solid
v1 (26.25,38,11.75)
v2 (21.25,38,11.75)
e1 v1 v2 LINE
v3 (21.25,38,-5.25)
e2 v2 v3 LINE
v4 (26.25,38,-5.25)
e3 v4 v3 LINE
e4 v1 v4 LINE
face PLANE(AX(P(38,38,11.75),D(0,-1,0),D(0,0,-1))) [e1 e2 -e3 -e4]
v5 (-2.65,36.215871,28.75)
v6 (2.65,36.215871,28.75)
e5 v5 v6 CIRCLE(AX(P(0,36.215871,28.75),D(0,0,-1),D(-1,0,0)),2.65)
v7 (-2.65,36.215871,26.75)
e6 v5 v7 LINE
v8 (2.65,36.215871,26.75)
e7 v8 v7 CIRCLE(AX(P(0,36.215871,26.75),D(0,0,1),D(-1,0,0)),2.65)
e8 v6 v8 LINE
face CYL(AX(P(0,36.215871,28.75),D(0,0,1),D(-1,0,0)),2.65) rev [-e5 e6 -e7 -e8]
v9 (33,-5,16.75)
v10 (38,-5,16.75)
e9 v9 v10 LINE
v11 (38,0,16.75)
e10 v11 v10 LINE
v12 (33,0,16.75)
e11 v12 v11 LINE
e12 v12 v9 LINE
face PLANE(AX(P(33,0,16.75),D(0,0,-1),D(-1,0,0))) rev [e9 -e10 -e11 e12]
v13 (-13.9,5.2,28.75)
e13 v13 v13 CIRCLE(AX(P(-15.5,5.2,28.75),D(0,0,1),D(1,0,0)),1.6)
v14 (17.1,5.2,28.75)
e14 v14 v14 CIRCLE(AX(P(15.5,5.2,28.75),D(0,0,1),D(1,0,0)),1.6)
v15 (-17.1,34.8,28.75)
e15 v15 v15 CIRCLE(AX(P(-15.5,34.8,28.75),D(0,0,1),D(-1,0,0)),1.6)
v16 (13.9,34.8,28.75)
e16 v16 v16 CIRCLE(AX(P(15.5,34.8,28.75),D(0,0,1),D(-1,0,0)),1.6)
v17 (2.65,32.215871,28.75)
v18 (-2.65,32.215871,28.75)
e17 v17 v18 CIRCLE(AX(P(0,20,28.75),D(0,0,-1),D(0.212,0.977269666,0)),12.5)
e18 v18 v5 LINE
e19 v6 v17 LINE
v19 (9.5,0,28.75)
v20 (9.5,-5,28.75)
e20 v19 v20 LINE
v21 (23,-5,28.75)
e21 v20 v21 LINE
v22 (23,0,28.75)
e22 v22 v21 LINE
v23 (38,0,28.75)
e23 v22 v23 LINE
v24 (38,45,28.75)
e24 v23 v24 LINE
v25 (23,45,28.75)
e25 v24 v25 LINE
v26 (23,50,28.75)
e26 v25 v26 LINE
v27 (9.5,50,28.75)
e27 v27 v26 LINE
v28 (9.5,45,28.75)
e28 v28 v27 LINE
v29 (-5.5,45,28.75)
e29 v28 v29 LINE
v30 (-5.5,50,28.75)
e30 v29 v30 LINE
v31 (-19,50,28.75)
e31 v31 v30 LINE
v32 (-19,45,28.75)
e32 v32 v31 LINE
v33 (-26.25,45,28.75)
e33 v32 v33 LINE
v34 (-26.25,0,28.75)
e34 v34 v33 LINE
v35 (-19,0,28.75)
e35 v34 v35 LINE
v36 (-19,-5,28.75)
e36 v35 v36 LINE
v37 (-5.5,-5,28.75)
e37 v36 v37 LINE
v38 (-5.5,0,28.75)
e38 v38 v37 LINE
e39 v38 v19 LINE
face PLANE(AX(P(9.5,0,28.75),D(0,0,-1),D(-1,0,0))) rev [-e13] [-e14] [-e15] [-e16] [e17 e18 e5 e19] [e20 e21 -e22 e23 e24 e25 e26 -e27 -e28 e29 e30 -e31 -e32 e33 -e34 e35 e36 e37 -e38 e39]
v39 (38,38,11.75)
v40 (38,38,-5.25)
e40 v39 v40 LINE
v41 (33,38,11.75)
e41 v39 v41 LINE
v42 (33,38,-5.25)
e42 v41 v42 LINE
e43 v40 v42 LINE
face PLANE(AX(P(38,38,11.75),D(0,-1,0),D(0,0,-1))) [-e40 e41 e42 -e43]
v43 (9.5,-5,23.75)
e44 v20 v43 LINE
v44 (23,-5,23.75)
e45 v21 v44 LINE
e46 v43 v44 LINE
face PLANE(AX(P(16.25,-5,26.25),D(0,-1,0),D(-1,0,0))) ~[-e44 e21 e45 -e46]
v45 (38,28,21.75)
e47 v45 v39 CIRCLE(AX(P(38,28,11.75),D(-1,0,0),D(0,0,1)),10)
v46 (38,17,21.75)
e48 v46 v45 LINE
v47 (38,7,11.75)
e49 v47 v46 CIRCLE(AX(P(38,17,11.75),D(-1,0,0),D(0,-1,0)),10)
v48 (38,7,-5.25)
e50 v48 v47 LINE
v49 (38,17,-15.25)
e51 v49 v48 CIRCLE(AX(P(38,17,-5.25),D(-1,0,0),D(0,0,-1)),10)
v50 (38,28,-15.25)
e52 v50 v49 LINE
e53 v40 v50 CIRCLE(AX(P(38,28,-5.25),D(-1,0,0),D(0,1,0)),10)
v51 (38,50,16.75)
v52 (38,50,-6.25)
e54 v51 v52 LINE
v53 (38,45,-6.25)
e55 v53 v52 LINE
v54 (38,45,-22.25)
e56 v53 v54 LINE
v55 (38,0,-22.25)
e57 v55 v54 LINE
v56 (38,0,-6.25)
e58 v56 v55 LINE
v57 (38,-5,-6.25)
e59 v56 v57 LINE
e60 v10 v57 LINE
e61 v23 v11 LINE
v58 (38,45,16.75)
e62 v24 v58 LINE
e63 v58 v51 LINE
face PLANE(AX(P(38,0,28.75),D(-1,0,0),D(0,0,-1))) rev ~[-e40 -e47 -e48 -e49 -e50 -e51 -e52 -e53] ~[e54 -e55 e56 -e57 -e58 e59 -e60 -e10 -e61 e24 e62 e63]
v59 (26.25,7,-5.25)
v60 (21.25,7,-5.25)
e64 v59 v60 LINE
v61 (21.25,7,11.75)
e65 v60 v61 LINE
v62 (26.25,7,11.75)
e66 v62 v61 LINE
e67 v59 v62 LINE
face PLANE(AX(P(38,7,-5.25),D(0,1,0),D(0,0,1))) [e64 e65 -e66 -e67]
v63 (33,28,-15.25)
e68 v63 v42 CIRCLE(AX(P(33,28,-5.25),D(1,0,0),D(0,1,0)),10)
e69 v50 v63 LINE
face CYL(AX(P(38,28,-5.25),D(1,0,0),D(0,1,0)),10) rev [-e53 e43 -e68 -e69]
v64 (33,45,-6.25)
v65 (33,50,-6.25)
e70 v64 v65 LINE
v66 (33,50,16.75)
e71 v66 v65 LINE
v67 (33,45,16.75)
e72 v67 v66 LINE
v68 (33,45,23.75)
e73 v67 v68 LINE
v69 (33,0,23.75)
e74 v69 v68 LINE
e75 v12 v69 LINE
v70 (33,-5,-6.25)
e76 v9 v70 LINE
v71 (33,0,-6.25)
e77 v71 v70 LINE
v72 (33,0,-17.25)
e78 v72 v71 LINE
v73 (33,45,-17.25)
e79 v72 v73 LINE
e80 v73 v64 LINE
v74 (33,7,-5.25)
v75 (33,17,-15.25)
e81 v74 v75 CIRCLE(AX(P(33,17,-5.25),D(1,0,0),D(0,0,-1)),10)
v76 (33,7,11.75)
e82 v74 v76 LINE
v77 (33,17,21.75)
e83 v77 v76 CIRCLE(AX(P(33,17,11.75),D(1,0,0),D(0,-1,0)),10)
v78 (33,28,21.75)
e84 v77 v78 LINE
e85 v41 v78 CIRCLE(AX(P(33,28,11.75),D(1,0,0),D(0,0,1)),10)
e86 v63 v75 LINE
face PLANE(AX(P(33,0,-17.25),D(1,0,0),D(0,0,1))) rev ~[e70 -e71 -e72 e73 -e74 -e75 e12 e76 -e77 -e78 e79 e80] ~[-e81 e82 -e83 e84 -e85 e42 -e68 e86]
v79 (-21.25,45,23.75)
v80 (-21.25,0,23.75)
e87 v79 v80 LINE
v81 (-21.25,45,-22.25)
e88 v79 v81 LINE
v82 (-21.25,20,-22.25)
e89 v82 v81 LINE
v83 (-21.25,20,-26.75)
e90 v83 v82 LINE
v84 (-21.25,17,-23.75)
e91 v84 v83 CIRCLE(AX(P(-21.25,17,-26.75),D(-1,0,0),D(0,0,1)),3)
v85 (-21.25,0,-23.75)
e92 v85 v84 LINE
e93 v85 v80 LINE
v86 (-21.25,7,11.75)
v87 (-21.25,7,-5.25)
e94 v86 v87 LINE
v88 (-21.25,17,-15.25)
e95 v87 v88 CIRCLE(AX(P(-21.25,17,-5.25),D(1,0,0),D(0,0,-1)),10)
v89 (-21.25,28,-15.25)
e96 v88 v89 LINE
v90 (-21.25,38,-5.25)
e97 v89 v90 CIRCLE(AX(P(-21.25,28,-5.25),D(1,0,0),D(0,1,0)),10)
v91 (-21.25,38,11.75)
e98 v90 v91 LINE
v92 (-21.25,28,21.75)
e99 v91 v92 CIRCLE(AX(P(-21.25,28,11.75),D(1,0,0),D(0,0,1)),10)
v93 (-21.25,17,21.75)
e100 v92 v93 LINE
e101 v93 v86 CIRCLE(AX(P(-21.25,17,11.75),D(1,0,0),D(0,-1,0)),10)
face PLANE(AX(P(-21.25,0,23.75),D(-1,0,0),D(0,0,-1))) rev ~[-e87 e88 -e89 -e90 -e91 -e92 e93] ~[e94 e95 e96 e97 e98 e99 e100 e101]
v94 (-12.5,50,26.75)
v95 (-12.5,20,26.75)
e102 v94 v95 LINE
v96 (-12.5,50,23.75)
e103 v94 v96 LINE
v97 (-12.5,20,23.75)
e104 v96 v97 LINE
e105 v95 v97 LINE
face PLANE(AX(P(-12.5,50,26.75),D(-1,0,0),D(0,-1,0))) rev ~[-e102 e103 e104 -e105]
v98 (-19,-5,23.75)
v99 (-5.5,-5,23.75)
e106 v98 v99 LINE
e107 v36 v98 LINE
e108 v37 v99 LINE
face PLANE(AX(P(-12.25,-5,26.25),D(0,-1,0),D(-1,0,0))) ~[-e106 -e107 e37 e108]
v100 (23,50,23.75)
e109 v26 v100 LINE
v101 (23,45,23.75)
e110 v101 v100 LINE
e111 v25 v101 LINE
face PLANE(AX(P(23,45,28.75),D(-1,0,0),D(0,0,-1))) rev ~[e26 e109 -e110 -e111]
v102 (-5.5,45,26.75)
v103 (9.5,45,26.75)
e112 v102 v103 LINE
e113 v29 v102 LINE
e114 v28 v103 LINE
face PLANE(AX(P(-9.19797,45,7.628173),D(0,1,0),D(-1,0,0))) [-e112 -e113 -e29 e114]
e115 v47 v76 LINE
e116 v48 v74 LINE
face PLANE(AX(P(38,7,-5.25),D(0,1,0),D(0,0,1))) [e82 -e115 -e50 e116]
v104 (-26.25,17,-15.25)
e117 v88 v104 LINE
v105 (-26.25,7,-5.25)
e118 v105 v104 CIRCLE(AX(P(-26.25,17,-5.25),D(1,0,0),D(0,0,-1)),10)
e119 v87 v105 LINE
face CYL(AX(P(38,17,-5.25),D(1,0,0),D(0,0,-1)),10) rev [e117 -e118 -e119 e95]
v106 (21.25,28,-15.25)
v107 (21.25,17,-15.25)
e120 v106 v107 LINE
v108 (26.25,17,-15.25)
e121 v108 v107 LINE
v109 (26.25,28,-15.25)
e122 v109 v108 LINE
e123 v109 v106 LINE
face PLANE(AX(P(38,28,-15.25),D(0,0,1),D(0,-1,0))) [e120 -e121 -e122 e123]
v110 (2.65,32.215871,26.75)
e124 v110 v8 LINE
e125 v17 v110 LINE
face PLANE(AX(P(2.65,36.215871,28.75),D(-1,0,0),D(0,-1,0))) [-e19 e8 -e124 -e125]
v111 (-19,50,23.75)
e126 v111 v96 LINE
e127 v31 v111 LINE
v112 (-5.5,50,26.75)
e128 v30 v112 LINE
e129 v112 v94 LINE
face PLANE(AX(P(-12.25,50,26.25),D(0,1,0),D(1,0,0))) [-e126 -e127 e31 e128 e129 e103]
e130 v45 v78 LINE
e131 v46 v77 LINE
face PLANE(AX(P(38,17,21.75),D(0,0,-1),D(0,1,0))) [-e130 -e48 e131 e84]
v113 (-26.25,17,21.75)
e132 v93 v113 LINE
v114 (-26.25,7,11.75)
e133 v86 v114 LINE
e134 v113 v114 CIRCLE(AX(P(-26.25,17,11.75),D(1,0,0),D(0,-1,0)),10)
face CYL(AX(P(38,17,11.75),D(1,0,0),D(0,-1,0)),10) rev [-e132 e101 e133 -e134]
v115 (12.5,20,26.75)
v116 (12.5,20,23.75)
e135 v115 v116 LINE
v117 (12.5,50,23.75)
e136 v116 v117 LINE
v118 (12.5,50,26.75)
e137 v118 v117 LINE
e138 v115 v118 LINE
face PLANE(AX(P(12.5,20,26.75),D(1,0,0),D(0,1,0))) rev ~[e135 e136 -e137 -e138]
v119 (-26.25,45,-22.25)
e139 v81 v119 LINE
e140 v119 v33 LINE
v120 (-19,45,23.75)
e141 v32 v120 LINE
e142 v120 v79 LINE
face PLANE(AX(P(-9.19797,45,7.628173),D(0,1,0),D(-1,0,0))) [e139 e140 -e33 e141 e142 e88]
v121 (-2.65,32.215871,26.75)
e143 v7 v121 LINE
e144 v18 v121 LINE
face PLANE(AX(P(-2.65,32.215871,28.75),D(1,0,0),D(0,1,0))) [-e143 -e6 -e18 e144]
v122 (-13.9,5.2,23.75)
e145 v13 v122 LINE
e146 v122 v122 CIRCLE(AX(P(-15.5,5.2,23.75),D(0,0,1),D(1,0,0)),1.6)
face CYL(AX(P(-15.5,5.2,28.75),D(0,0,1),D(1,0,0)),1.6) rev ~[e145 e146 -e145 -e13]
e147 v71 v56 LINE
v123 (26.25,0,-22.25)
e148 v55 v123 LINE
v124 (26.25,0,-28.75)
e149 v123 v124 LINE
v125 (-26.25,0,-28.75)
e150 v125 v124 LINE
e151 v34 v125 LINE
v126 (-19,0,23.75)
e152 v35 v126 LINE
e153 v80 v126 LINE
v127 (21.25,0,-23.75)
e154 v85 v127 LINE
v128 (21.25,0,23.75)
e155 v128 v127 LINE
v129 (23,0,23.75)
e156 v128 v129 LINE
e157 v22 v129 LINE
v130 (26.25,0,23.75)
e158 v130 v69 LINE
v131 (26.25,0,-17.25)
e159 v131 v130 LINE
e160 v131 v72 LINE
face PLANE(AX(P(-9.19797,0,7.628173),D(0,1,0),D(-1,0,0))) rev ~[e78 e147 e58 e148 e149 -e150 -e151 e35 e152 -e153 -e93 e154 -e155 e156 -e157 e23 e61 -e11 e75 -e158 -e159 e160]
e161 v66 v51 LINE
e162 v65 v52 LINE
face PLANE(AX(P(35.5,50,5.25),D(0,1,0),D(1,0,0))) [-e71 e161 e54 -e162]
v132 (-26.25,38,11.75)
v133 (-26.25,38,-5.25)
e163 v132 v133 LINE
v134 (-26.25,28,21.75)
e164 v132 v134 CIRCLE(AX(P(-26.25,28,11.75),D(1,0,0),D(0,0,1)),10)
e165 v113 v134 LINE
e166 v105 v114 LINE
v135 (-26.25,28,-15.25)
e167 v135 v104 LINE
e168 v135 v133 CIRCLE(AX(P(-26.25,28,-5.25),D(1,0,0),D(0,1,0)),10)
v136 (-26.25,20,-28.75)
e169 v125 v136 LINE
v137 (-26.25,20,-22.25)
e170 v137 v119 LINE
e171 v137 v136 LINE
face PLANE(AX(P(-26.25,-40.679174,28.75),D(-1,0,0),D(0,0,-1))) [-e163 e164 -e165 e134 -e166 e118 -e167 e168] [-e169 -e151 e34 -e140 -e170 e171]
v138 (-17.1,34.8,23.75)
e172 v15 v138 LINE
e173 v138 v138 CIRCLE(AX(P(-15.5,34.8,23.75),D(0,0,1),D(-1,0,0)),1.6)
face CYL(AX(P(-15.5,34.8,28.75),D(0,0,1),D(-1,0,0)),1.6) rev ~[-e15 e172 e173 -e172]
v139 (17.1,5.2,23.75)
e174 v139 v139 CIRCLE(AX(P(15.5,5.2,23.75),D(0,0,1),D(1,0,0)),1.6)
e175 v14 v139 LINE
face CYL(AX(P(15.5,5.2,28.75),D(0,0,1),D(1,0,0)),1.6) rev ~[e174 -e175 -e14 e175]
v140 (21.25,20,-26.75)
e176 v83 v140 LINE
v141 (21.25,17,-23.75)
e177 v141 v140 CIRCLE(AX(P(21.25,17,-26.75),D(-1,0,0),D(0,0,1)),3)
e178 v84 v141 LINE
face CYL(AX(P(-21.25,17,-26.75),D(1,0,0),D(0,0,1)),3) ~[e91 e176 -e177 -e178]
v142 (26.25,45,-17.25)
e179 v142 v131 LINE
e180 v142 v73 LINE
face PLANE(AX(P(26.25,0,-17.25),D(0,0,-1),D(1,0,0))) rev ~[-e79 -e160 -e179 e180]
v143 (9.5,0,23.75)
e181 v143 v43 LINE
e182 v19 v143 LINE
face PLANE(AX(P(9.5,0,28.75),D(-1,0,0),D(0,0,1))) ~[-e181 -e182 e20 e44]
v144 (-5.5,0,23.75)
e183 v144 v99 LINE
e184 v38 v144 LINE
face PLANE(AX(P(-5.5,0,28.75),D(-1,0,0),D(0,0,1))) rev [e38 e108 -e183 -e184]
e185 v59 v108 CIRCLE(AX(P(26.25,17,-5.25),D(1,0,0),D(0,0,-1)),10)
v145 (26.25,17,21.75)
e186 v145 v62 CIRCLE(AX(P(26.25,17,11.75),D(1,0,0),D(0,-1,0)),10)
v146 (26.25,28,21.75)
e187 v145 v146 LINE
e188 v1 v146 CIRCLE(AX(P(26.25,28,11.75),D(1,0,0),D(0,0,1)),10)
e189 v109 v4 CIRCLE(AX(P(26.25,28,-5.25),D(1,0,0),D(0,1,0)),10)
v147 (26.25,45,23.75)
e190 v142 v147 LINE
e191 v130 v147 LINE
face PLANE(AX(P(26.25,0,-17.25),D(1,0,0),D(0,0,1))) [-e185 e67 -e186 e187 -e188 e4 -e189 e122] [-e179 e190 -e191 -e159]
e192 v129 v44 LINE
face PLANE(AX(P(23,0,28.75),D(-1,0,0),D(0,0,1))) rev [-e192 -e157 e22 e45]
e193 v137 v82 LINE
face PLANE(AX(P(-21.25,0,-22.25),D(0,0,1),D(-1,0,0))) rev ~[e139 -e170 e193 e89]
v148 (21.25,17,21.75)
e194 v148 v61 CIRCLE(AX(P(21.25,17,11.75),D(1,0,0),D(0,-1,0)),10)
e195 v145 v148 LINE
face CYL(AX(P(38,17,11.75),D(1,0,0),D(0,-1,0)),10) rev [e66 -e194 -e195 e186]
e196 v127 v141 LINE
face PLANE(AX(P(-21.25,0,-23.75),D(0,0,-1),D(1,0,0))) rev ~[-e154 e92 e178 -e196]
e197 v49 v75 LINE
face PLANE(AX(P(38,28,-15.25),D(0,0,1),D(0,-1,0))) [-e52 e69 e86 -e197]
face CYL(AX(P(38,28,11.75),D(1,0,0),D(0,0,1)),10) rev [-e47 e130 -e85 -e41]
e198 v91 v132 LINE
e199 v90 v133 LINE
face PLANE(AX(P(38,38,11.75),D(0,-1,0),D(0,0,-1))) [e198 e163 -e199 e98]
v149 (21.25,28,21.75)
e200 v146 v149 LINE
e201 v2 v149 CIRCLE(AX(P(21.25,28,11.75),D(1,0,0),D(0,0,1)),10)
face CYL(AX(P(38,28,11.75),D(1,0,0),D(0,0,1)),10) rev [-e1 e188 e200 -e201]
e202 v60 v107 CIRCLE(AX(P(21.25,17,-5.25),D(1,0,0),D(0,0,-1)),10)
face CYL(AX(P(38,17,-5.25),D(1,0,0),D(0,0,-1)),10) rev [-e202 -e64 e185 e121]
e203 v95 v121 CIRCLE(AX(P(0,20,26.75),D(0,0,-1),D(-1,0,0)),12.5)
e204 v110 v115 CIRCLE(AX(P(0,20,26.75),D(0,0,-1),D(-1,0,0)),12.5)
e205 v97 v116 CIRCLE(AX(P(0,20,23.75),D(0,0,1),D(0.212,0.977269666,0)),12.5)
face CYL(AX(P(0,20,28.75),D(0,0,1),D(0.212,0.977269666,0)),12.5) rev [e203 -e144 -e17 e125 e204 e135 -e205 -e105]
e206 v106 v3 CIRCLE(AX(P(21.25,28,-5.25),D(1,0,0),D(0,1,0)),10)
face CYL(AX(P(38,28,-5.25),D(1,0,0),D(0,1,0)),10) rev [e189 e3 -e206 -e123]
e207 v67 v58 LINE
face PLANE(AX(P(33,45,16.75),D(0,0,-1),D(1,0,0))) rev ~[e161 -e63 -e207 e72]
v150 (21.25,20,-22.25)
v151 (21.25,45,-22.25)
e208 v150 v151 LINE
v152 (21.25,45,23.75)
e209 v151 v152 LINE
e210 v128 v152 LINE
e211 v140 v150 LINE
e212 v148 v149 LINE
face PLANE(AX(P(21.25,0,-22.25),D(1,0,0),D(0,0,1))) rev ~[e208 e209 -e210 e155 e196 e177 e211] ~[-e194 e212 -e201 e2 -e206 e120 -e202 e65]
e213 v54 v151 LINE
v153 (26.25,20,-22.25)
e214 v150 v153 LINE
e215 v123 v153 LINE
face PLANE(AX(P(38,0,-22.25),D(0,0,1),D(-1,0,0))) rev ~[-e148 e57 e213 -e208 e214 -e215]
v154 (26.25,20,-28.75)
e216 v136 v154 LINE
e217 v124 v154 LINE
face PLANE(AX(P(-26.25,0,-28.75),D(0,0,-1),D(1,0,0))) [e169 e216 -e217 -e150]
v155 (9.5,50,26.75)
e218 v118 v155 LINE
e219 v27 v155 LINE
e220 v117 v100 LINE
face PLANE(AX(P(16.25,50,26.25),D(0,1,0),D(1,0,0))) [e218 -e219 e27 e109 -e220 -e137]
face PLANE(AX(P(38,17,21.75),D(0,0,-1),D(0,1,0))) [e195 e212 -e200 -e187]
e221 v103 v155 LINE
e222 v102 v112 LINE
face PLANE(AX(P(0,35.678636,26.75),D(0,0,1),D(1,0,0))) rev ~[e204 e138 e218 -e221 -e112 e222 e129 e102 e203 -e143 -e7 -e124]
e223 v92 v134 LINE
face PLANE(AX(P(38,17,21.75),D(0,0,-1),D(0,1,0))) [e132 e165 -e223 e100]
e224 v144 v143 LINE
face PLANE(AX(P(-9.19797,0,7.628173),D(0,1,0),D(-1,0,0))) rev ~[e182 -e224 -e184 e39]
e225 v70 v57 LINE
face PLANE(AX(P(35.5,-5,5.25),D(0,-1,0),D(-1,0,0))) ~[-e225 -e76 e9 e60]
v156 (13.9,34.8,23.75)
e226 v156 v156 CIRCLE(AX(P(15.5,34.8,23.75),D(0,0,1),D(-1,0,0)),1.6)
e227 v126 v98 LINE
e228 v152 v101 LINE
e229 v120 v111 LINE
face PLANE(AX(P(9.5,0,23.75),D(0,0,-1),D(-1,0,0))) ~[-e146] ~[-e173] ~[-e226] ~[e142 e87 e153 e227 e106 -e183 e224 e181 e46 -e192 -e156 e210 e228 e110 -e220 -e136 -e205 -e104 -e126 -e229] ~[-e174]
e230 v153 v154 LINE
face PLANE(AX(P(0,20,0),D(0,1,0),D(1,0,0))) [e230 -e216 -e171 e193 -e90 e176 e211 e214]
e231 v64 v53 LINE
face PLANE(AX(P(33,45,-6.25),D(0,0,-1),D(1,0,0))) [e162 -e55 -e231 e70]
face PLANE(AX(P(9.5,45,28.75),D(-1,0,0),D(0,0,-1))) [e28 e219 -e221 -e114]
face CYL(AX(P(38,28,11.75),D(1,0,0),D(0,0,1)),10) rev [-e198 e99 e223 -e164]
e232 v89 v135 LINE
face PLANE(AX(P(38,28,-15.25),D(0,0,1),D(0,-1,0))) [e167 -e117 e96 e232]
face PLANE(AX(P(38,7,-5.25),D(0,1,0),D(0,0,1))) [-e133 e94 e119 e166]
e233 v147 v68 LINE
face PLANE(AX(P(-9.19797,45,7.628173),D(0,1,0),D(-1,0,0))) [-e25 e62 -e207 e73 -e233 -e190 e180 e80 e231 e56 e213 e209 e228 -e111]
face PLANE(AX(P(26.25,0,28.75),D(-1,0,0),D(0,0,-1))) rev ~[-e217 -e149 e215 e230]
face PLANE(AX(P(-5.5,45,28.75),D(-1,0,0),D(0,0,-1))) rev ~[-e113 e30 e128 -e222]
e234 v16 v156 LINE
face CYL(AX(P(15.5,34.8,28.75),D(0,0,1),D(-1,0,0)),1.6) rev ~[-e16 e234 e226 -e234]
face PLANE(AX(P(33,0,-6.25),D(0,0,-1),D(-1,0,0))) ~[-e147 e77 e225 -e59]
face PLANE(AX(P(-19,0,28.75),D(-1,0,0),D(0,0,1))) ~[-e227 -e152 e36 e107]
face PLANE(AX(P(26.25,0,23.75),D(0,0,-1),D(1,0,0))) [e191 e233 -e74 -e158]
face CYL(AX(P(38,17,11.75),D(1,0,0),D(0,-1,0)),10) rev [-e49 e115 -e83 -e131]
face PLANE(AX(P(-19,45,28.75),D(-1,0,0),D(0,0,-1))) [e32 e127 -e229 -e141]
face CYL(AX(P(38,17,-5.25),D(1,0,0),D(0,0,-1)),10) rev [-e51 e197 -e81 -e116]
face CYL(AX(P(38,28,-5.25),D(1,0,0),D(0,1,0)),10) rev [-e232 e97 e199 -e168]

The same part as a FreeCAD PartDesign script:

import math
import FreeCAD as App
import Part
import Sketcher

V = App.Vector
Q = App.Units.Quantity


def edges_at(feature, points):
    """Names of the edges that pass closest to the given points."""
    edges = feature.Shape.Edges
    near = lambda p: min(range(len(edges)), key=lambda i: edges[i].distToShape(Part.Vertex(*p))[0])
    return sorted({f"Edge{near(p) + 1}" for p in points})


def add_polygon(sketch, points):
    """Adds a closed chain of lines whose ends are joined by coincident constraints."""
    first, n = sketch.GeometryCount, len(points)
    for a, b in zip(points, points[1:] + points[:1]):
        sketch.addGeometry(Part.LineSegment(App.Vector(*a, 0), App.Vector(*b, 0)), False)
    for i in range(n):
        sketch.addConstraint(Sketcher.Constraint("Coincident", first + i, 2, first + (i + 1) % n, 1))

doc = App.newDocument("Part")
body = doc.addObject("PartDesign::Body", "Body")

sketch1 = body.newObject("Sketcher::SketchObject", "Sketch")
sketch1.AttachmentSupport = (doc.getObject("XZ_Plane"), [""])
sketch1.MapMode = "FlatFace"
add_polygon(sketch1, [(-26.25, -28.75), (-26.25, 28.75), (26.25, 28.75), (26.25, -28.75)])
add_polygon(sketch1, [(21.25, 23.75), (-21.25, 23.75), (-21.25, -23.75), (21.25, -23.75)])
sketch1.addConstraint(Sketcher.Constraint("Vertical", 0))
sketch1.addConstraint(Sketcher.Constraint("Horizontal", 1))
sketch1.addConstraint(Sketcher.Constraint("Vertical", 2))
sketch1.addConstraint(Sketcher.Constraint("Horizontal", 3))
sketch1.addConstraint(Sketcher.Constraint("Horizontal", 4))
sketch1.addConstraint(Sketcher.Constraint("Vertical", 5))
sketch1.addConstraint(Sketcher.Constraint("Horizontal", 6))
sketch1.addConstraint(Sketcher.Constraint("Vertical", 7))
sketch1.addConstraint(Sketcher.Constraint("Symmetric", 0, 2, 2, 2, -1, 1))
sketch1.addConstraint(Sketcher.Constraint("Symmetric", 4, 2, 6, 2, -1, 1))
sketch1.addConstraint(Sketcher.Constraint("DistanceX", 1, 1, 1, 2, Q("52.5 mm")))
sketch1.addConstraint(Sketcher.Constraint("DistanceX", 4, 2, 4, 1, Q("42.5 mm")))
sketch1.addConstraint(Sketcher.Constraint("DistanceY", 0, 1, 0, 2, Q("57.5 mm")))
sketch1.addConstraint(Sketcher.Constraint("DistanceY", 5, 2, 5, 1, Q("47.5 mm")))
pad1 = body.newObject("PartDesign::Pad", "Pad")
pad1.Profile = sketch1
pad1.Length = 20
pad1.Reversed = True

sketch2 = body.newObject("Sketcher::SketchObject", "Sketch001")
sketch2.AttachmentSupport = (doc.getObject("XZ_Plane"), [""])
sketch2.MapMode = "FlatFace"
add_polygon(sketch2, [(38, 28.75), (-62, 28.75), (-62, -22.25), (-21.25, -22.25), (-21.25, 23.75), (21.25, 23.75), (21.25, -22.25), (38, -22.25)])
add_polygon(sketch2, [(26.25, -17.25), (26.25, 23.75), (33, 23.75), (33, -17.25)])
add_polygon(sketch2, [(-57, -17.25), (-57, 23.75), (-26.25, 23.75), (-26.25, -17.25)])
sketch2.addConstraint(Sketcher.Constraint("Horizontal", 0))
sketch2.addConstraint(Sketcher.Constraint("Vertical", 1))
sketch2.addConstraint(Sketcher.Constraint("Horizontal", 2))
sketch2.addConstraint(Sketcher.Constraint("Vertical", 3))
sketch2.addConstraint(Sketcher.Constraint("Horizontal", 4))
sketch2.addConstraint(Sketcher.Constraint("Vertical", 5))
sketch2.addConstraint(Sketcher.Constraint("Horizontal", 6))
sketch2.addConstraint(Sketcher.Constraint("Vertical", 7))
sketch2.addConstraint(Sketcher.Constraint("Vertical", 8))
sketch2.addConstraint(Sketcher.Constraint("Horizontal", 9))
sketch2.addConstraint(Sketcher.Constraint("Vertical", 10))
sketch2.addConstraint(Sketcher.Constraint("Horizontal", 11))
sketch2.addConstraint(Sketcher.Constraint("Vertical", 12))
sketch2.addConstraint(Sketcher.Constraint("Horizontal", 13))
sketch2.addConstraint(Sketcher.Constraint("Vertical", 14))
sketch2.addConstraint(Sketcher.Constraint("Horizontal", 15))
sketch2.addConstraint(Sketcher.Constraint("Symmetric", 2, 2, 5, 2, -2))
sketch2.addConstraint(Sketcher.Constraint("Symmetric", 8, 2, 13, 2, -2))
sketch2.addConstraint(Sketcher.Constraint("Horizontal", 4, 2, 8, 2))
sketch2.addConstraint(Sketcher.Constraint("Horizontal", 11, 2, 14, 2))
sketch2.addConstraint(Sketcher.Constraint("DistanceX", 0, 2, 0, 1, Q("100 mm")))
sketch2.addConstraint(Sketcher.Constraint("DistanceY", 1, 2, 1, 1, Q("51 mm")))
sketch2.addConstraint(Sketcher.Constraint("DistanceY", 3, 1, 3, 2, Q("46 mm")))
sketch2.addConstraint(Sketcher.Constraint("DistanceY", 8, 1, 8, 2, Q("41 mm")))
sketch2.addConstraint(Sketcher.Constraint("DistanceX", 4, 1, 4, 2, Q("42.5 mm")))
sketch2.addConstraint(Sketcher.Constraint("DistanceX", 0, 2, -1, 1, Q("62 mm")))
sketch2.addConstraint(Sketcher.Constraint("DistanceX", -1, 1, 9, 2, Q("33 mm")))
sketch2.addConstraint(Sketcher.Constraint("DistanceX", 12, 2, -1, 1, Q("57 mm")))
sketch2.addConstraint(Sketcher.Constraint("DistanceX", 4, 2, 8, 2, Q("5 mm")))
sketch2.addConstraint(Sketcher.Constraint("DistanceY", -1, 1, 0, 2, Q("28.75 mm")))
pad2 = body.newObject("PartDesign::Pad", "Pad001")
pad2.Profile = sketch2
pad2.Length = 45
pad2.Reversed = True

sketch3 = body.newObject("Sketcher::SketchObject", "Sketch002")
sketch3.AttachmentSupport = (doc.getObject("XZ_Plane"), [""])
sketch3.MapMode = "FlatFace"
sketch3.AttachmentOffset = App.Placement(V(0, 0, -45), App.Rotation())
add_polygon(sketch3, [(33, -6.25), (33, 16.75), (38, 16.75), (38, -6.25)])
add_polygon(sketch3, [(9.5, 23.75), (9.5, 28.75), (23, 28.75), (23, 23.75)])
add_polygon(sketch3, [(-19, 23.75), (-19, 28.75), (-5.5, 28.75), (-5.5, 23.75)])
add_polygon(sketch3, [(-47.5, 23.75), (-47.5, 28.75), (-34, 28.75), (-34, 23.75)])
add_polygon(sketch3, [(-47.5, -22.25), (-47.5, -17.25), (-34, -17.25), (-34, -22.25)])
add_polygon(sketch3, [(-62, -6.25), (-62, 16.75), (-57, 16.75), (-57, -6.25)])
sketch3.addConstraint(Sketcher.Constraint("Vertical", 0))
sketch3.addConstraint(Sketcher.Constraint("Horizontal", 1))
sketch3.addConstraint(Sketcher.Constraint("Vertical", 2))
sketch3.addConstraint(Sketcher.Constraint("Horizontal", 3))
sketch3.addConstraint(Sketcher.Constraint("Vertical", 4))
sketch3.addConstraint(Sketcher.Constraint("Horizontal", 5))
sketch3.addConstraint(Sketcher.Constraint("Vertical", 6))
sketch3.addConstraint(Sketcher.Constraint("Horizontal", 7))
sketch3.addConstraint(Sketcher.Constraint("Vertical", 8))
sketch3.addConstraint(Sketcher.Constraint("Horizontal", 9))
sketch3.addConstraint(Sketcher.Constraint("Vertical", 10))
sketch3.addConstraint(Sketcher.Constraint("Horizontal", 11))
sketch3.addConstraint(Sketcher.Constraint("Vertical", 12))
sketch3.addConstraint(Sketcher.Constraint("Horizontal", 13))
sketch3.addConstraint(Sketcher.Constraint("Vertical", 14))
sketch3.addConstraint(Sketcher.Constraint("Horizontal", 15))
sketch3.addConstraint(Sketcher.Constraint("Vertical", 16))
sketch3.addConstraint(Sketcher.Constraint("Horizontal", 17))
sketch3.addConstraint(Sketcher.Constraint("Vertical", 18))
sketch3.addConstraint(Sketcher.Constraint("Horizontal", 19))
sketch3.addConstraint(Sketcher.Constraint("Vertical", 20))
sketch3.addConstraint(Sketcher.Constraint("Horizontal", 21))
sketch3.addConstraint(Sketcher.Constraint("Vertical", 22))
sketch3.addConstraint(Sketcher.Constraint("Horizontal", 23))
sketch3.addConstraint(Sketcher.Constraint("Horizontal", 5, 2, 8, 2))
sketch3.addConstraint(Sketcher.Constraint("Horizontal", 7, 2, 10, 2))
sketch3.addConstraint(Sketcher.Constraint("Horizontal", 9, 2, 12, 2))
sketch3.addConstraint(Sketcher.Constraint("Horizontal", 11, 2, 14, 2))
sketch3.addConstraint(Sketcher.Constraint("Horizontal", 1, 2, 20, 2))
sketch3.addConstraint(Sketcher.Constraint("Horizontal", 3, 2, 22, 2))
sketch3.addConstraint(Sketcher.Constraint("Vertical", 15, 2, 16, 2))
sketch3.addConstraint(Sketcher.Constraint("Vertical", 14, 2, 17, 2))
sketch3.addConstraint(Sketcher.Constraint("Equal", 7, 9))
sketch3.addConstraint(Sketcher.Constraint("Equal", 11, 13))
sketch3.addConstraint(Sketcher.Constraint("Equal", 3, 21))
sketch3.addConstraint(Sketcher.Constraint("Equal", 23, 4))
sketch3.addConstraint(Sketcher.Constraint("Equal", 14, 16))
sketch3.addConstraint(Sketcher.Constraint("DistanceX", 1, 1, 1, 2, Q("5 mm")))
sketch3.addConstraint(Sketcher.Constraint("DistanceY", 0, 1, 0, 2, Q("23 mm")))
sketch3.addConstraint(Sketcher.Constraint("DistanceX", 5, 1, 5, 2, Q("13.5 mm")))
sketch3.addConstraint(Sketcher.Constraint("DistanceX", -1, 1, 0, 2, Q("33 mm")))
sketch3.addConstraint(Sketcher.Constraint("DistanceX", -1, 1, 5, 2, Q("23 mm")))
sketch3.addConstraint(Sketcher.Constraint("DistanceX", 8, 2, -1, 1, Q("19 mm")))
sketch3.addConstraint(Sketcher.Constraint("DistanceX", 13, 2, -1, 1, Q("34 mm")))
sketch3.addConstraint(Sketcher.Constraint("DistanceX", 20, 2, -1, 1, Q("62 mm")))
sketch3.addConstraint(Sketcher.Constraint("DistanceY", 0, 2, 4, 2, Q("12 mm")))
sketch3.addConstraint(Sketcher.Constraint("DistanceY", 16, 2, 15, 2, Q("41 mm")))
sketch3.addConstraint(Sketcher.Constraint("DistanceY", -1, 1, 0, 2, Q("16.75 mm")))
pad3 = body.newObject("PartDesign::Pad", "Pad002")
pad3.Profile = sketch3
pad3.Length = 5
pad3.Reversed = True

sketch4 = body.newObject("Sketcher::SketchObject", "Sketch003")
sketch4.AttachmentSupport = (doc.getObject("XY_Plane"), [""])
sketch4.MapMode = "FlatFace"
sketch4.AttachmentOffset = App.Placement(V(0, 0, 28.75), App.Rotation())
sketch4.addGeometry(Part.Circle(V(-15.5, 5.2, 0), V(0, 0, 1), 1.6), False)
sketch4.addConstraint(Sketcher.Constraint("Diameter", 0, Q("3.2 mm")))
sketch4.addConstraint(Sketcher.Constraint("DistanceX", 0, 3, -1, 1, Q("15.5 mm")))
sketch4.addConstraint(Sketcher.Constraint("DistanceY", -1, 1, 0, 3, Q("5.2 mm")))
pocket1 = body.newObject("PartDesign::Pocket", "Pocket")
pocket1.Profile = sketch4
pocket1.Type = "UpToFirst"

sketch5 = body.newObject("Sketcher::SketchObject", "Sketch004")
sketch5.AttachmentSupport = (doc.getObject("XY_Plane"), [""])
sketch5.MapMode = "FlatFace"
sketch5.AttachmentOffset = App.Placement(V(0, 0, 28.75), App.Rotation())
sketch5.addGeometry(Part.Circle(V(15.5, 5.2, 0), V(0, 0, 1), 1.6), False)
sketch5.addConstraint(Sketcher.Constraint("Diameter", 0, Q("3.2 mm")))
sketch5.addConstraint(Sketcher.Constraint("DistanceX", -1, 1, 0, 3, Q("15.5 mm")))
sketch5.addConstraint(Sketcher.Constraint("DistanceY", -1, 1, 0, 3, Q("5.2 mm")))
pocket2 = body.newObject("PartDesign::Pocket", "Pocket001")
pocket2.Profile = sketch5
pocket2.Type = "UpToFirst"

sketch6 = body.newObject("Sketcher::SketchObject", "Sketch005")
sketch6.AttachmentSupport = (doc.getObject("XY_Plane"), [""])
sketch6.MapMode = "FlatFace"
sketch6.AttachmentOffset = App.Placement(V(0, 0, 28.75), App.Rotation())
sketch6.addGeometry(Part.Circle(V(15.5, 34.8, 0), V(0, 0, 1), 1.6), False)
sketch6.addConstraint(Sketcher.Constraint("Diameter", 0, Q("3.2 mm")))
sketch6.addConstraint(Sketcher.Constraint("DistanceX", -1, 1, 0, 3, Q("15.5 mm")))
sketch6.addConstraint(Sketcher.Constraint("DistanceY", -1, 1, 0, 3, Q("34.8 mm")))
pocket3 = body.newObject("PartDesign::Pocket", "Pocket002")
pocket3.Profile = sketch6
pocket3.Type = "UpToFirst"

sketch7 = body.newObject("Sketcher::SketchObject", "Sketch006")
sketch7.AttachmentSupport = (doc.getObject("XY_Plane"), [""])
sketch7.MapMode = "FlatFace"
sketch7.AttachmentOffset = App.Placement(V(0, 0, 28.75), App.Rotation())
sketch7.addGeometry(Part.Circle(V(-15.5, 34.8, 0), V(0, 0, 1), 1.6), False)
sketch7.addConstraint(Sketcher.Constraint("Diameter", 0, Q("3.2 mm")))
sketch7.addConstraint(Sketcher.Constraint("DistanceX", 0, 3, -1, 1, Q("15.5 mm")))
sketch7.addConstraint(Sketcher.Constraint("DistanceY", -1, 1, 0, 3, Q("34.8 mm")))
pocket4 = body.newObject("PartDesign::Pocket", "Pocket003")
pocket4.Profile = sketch7
pocket4.Type = "UpToFirst"

sketch8 = body.newObject("Sketcher::SketchObject", "Sketch007")
sketch8.AttachmentSupport = (doc.getObject("XY_Plane"), [""])
sketch8.MapMode = "FlatFace"
sketch8.AttachmentOffset = App.Placement(V(0, 0, 28.75), App.Rotation())
sketch8.addGeometry(Part.LineSegment(V(2.65, 32.215871, 0), V(2.65, 36.215871, 0)), False)
sketch8.addGeometry(Part.ArcOfCircle(Part.Circle(V(0, 36.215871, 0), V(0, 0, 1), 2.65), math.radians(0), math.radians(180)), False)
sketch8.addGeometry(Part.LineSegment(V(-2.65, 36.215871, 0), V(-2.65, 32.215871, 0)), False)
sketch8.addGeometry(Part.ArcOfCircle(Part.Circle(V(0, 20, 0), V(0, 0, 1), 12.5), math.radians(102.239583), math.radians(437.760417)), False)
sketch8.addConstraint(Sketcher.Constraint("Tangent", 0, 2, 1, 1))
sketch8.addConstraint(Sketcher.Constraint("Tangent", 1, 2, 2, 1))
sketch8.addConstraint(Sketcher.Constraint("Coincident", 2, 2, 3, 1))
sketch8.addConstraint(Sketcher.Constraint("Coincident", 3, 2, 0, 1))
sketch8.addConstraint(Sketcher.Constraint("Vertical", 0))
sketch8.addConstraint(Sketcher.Constraint("Vertical", 2))
sketch8.addConstraint(Sketcher.Constraint("Symmetric", 2, 2, 3, 2, -2))
sketch8.addConstraint(Sketcher.Constraint("Radius", 3, Q("12.5 mm")))
sketch8.addConstraint(Sketcher.Constraint("DistanceY", 0, 1, 0, 2, Q("4 mm")))
sketch8.addConstraint(Sketcher.Constraint("Radius", 1, Q("2.65 mm")))
sketch8.addConstraint(Sketcher.Constraint("DistanceY", -1, 1, 3, 3, Q("20 mm")))
pocket5 = body.newObject("PartDesign::Pocket", "Pocket004")
pocket5.Profile = sketch8
pocket5.Type = "UpToFirst"

sketch9 = body.newObject("Sketcher::SketchObject", "Sketch008")
sketch9.AttachmentSupport = (doc.getObject("XY_Plane"), [""])
sketch9.MapMode = "FlatFace"
sketch9.AttachmentOffset = App.Placement(V(0, 0, 26.75), App.Rotation())
sketch9.addGeometry(Part.LineSegment(V(12.5, 50, 0), V(12.5, 20, 0)), False)
sketch9.addGeometry(Part.ArcOfCircle(Part.Circle(V(0, 20, 0), V(0, 0, 1), 12.5), math.radians(0), math.radians(180)), False)
sketch9.addGeometry(Part.LineSegment(V(-12.5, 20, 0), V(-12.5, 50, 0)), False)
sketch9.addGeometry(Part.LineSegment(V(-12.5, 50, 0), V(12.5, 50, 0)), False)
sketch9.addConstraint(Sketcher.Constraint("Tangent", 0, 2, 1, 1))
sketch9.addConstraint(Sketcher.Constraint("Tangent", 1, 2, 2, 1))
sketch9.addConstraint(Sketcher.Constraint("Coincident", 2, 2, 3, 1))
sketch9.addConstraint(Sketcher.Constraint("Coincident", 3, 2, 0, 1))
sketch9.addConstraint(Sketcher.Constraint("Vertical", 0))
sketch9.addConstraint(Sketcher.Constraint("Vertical", 2))
sketch9.addConstraint(Sketcher.Constraint("Horizontal", 3))
sketch9.addConstraint(Sketcher.Constraint("PointOnObject", 1, 3, -2))
sketch9.addConstraint(Sketcher.Constraint("Radius", 1, Q("12.5 mm")))
sketch9.addConstraint(Sketcher.Constraint("DistanceY", 0, 2, 0, 1, Q("30 mm")))
sketch9.addConstraint(Sketcher.Constraint("DistanceY", -1, 1, 1, 3, Q("20 mm")))
pocket6 = body.newObject("PartDesign::Pocket", "Pocket005")
pocket6.Profile = sketch9
pocket6.Length = 3
doc.recompute()

datumplane = body.newObject("PartDesign::Plane", "DatumPlane")
datumplane.AttachmentSupport = (doc.getObject("XZ_Plane"), [""])
datumplane.MapMode = "FlatFace"
datumplane.AttachmentOffset = App.Placement(V(0, 0, -22.5), App.Rotation())
mirrored = body.newObject("PartDesign::Mirrored", "Mirrored")
mirrored.Originals = [pad3]
mirrored.MirrorPlane = (datumplane, [""])
body.Tip = mirrored
doc.recompute()

fillet = body.newObject("PartDesign::Fillet", "Fillet")
fillet.Base = (mirrored, edges_at(mirrored, [(0, 20, -23.75)]))
fillet.Radius = 3

sketch10 = body.newObject("Sketcher::SketchObject", "Sketch009")
sketch10.AttachmentSupport = (doc.getObject("YZ_Plane"), [""])
sketch10.MapMode = "FlatFace"
sketch10.AttachmentOffset = App.Placement(V(0, 0, 38), App.Rotation())
sketch10.addGeometry(Part.LineSegment(V(38, -5.25, 0), V(38, 11.75, 0)), False)
sketch10.addGeometry(Part.ArcOfCircle(Part.Circle(V(28, 11.75, 0), V(0, 0, 1), 10), math.radians(0), math.radians(90)), False)
sketch10.addGeometry(Part.LineSegment(V(28, 21.75, 0), V(17, 21.75, 0)), False)
sketch10.addGeometry(Part.ArcOfCircle(Part.Circle(V(17, 11.75, 0), V(0, 0, 1), 10), math.radians(90), math.radians(180)), False)
sketch10.addGeometry(Part.LineSegment(V(7, 11.75, 0), V(7, -5.25, 0)), False)
sketch10.addGeometry(Part.ArcOfCircle(Part.Circle(V(17, -5.25, 0), V(0, 0, 1), 10), math.radians(180), math.radians(270)), False)
sketch10.addGeometry(Part.LineSegment(V(17, -15.25, 0), V(28, -15.25, 0)), False)
sketch10.addGeometry(Part.ArcOfCircle(Part.Circle(V(28, -5.25, 0), V(0, 0, 1), 10), math.radians(-90), math.radians(0)), False)
sketch10.addConstraint(Sketcher.Constraint("Tangent", 0, 2, 1, 1))
sketch10.addConstraint(Sketcher.Constraint("Tangent", 1, 2, 2, 1))
sketch10.addConstraint(Sketcher.Constraint("Tangent", 2, 2, 3, 1))
sketch10.addConstraint(Sketcher.Constraint("Tangent", 3, 2, 4, 1))
sketch10.addConstraint(Sketcher.Constraint("Tangent", 4, 2, 5, 1))
sketch10.addConstraint(Sketcher.Constraint("Tangent", 5, 2, 6, 1))
sketch10.addConstraint(Sketcher.Constraint("Tangent", 6, 2, 7, 1))
sketch10.addConstraint(Sketcher.Constraint("Tangent", 7, 2, 0, 1))
sketch10.addConstraint(Sketcher.Constraint("Vertical", 0))
sketch10.addConstraint(Sketcher.Constraint("Horizontal", 2))
sketch10.addConstraint(Sketcher.Constraint("Vertical", 4))
sketch10.addConstraint(Sketcher.Constraint("Horizontal", 6))
sketch10.addConstraint(Sketcher.Constraint("Equal", 1, 3))
sketch10.addConstraint(Sketcher.Constraint("Equal", 3, 5))
sketch10.addConstraint(Sketcher.Constraint("Equal", 5, 7))
sketch10.addConstraint(Sketcher.Constraint("Radius", 1, Q("10 mm")))
sketch10.addConstraint(Sketcher.Constraint("DistanceX", 2, 2, 2, 1, Q("11 mm")))
sketch10.addConstraint(Sketcher.Constraint("DistanceY", 0, 1, 0, 2, Q("17 mm")))
sketch10.addConstraint(Sketcher.Constraint("DistanceX", -1, 1, 1, 3, Q("28 mm")))
sketch10.addConstraint(Sketcher.Constraint("DistanceY", -1, 1, 1, 3, Q("11.75 mm")))
pocket7 = body.newObject("PartDesign::Pocket", "Pocket006")
pocket7.Profile = sketch10
pocket7.Type = "ThroughAll"

sketch11 = body.newObject("Sketcher::SketchObject", "Sketch010")
sketch11.AttachmentSupport = (doc.getObject("XY_Plane"), [""])
sketch11.MapMode = "FlatFace"
sketch11.AttachmentOffset = App.Placement(V(0, 0, -22.25), App.Rotation())
sketch11.addGeometry(Part.LineSegment(V(-48.625, 15, 0), V(-48.625, 30, 0)), False)
sketch11.addGeometry(Part.ArcOfCircle(Part.Circle(V(-41.625, 30, 0), V(0, 0, 1), 7), math.radians(0), math.radians(180)), False)
sketch11.addGeometry(Part.LineSegment(V(-34.625, 30, 0), V(-34.625, 15, 0)), False)
sketch11.addGeometry(Part.ArcOfCircle(Part.Circle(V(-41.625, 15, 0), V(0, 0, 1), 7), math.radians(180), math.radians(360)), False)
sketch11.addConstraint(Sketcher.Constraint("Tangent", 0, 2, 1, 2))
sketch11.addConstraint(Sketcher.Constraint("Tangent", 1, 1, 2, 1))
sketch11.addConstraint(Sketcher.Constraint("Tangent", 2, 2, 3, 2))
sketch11.addConstraint(Sketcher.Constraint("Tangent", 3, 1, 0, 1))
sketch11.addConstraint(Sketcher.Constraint("Vertical", 0))
sketch11.addConstraint(Sketcher.Constraint("Vertical", 2))
sketch11.addConstraint(Sketcher.Constraint("Radius", 1, Q("7 mm")))
sketch11.addConstraint(Sketcher.Constraint("DistanceY", 0, 1, 0, 2, Q("15 mm")))
sketch11.addConstraint(Sketcher.Constraint("DistanceY", -1, 1, 1, 3, Q("30 mm")))
sketch11.addConstraint(Sketcher.Constraint("DistanceX", 1, 3, -1, 1, Q("41.625 mm")))
pocket8 = body.newObject("PartDesign::Pocket", "Pocket007")
pocket8.Profile = sketch11
pocket8.Type = "ThroughAll"
pocket8.Reversed = True

sketch12 = body.newObject("Sketcher::SketchObject", "Sketch011")
sketch12.AttachmentSupport = (doc.getObject("XZ_Plane"), [""])
sketch12.MapMode = "FlatFace"
sketch12.AttachmentOffset = App.Placement(V(0, 0, -45), App.Rotation())
add_polygon(sketch12, [(-62, -22.25), (-62, 28.75), (-26.25, 28.75), (-26.25, -22.25)])
sketch12.addConstraint(Sketcher.Constraint("Vertical", 0))
sketch12.addConstraint(Sketcher.Constraint("Horizontal", 1))
sketch12.addConstraint(Sketcher.Constraint("Vertical", 2))
sketch12.addConstraint(Sketcher.Constraint("Horizontal", 3))
sketch12.addConstraint(Sketcher.Constraint("DistanceY", 0, 1, 0, 2, Q("51 mm")))
sketch12.addConstraint(Sketcher.Constraint("DistanceX", 0, 2, -1, 1, Q("62 mm")))
sketch12.addConstraint(Sketcher.Constraint("DistanceX", 1, 1, 1, 2, Q("35.75 mm")))
sketch12.addConstraint(Sketcher.Constraint("DistanceY", -1, 1, 0, 2, Q("28.75 mm")))
pocket9 = body.newObject("PartDesign::Pocket", "Pocket008")
pocket9.Profile = sketch12
pocket9.Type = "ThroughAll"
pocket9.Midplane = True

doc.recompute()
